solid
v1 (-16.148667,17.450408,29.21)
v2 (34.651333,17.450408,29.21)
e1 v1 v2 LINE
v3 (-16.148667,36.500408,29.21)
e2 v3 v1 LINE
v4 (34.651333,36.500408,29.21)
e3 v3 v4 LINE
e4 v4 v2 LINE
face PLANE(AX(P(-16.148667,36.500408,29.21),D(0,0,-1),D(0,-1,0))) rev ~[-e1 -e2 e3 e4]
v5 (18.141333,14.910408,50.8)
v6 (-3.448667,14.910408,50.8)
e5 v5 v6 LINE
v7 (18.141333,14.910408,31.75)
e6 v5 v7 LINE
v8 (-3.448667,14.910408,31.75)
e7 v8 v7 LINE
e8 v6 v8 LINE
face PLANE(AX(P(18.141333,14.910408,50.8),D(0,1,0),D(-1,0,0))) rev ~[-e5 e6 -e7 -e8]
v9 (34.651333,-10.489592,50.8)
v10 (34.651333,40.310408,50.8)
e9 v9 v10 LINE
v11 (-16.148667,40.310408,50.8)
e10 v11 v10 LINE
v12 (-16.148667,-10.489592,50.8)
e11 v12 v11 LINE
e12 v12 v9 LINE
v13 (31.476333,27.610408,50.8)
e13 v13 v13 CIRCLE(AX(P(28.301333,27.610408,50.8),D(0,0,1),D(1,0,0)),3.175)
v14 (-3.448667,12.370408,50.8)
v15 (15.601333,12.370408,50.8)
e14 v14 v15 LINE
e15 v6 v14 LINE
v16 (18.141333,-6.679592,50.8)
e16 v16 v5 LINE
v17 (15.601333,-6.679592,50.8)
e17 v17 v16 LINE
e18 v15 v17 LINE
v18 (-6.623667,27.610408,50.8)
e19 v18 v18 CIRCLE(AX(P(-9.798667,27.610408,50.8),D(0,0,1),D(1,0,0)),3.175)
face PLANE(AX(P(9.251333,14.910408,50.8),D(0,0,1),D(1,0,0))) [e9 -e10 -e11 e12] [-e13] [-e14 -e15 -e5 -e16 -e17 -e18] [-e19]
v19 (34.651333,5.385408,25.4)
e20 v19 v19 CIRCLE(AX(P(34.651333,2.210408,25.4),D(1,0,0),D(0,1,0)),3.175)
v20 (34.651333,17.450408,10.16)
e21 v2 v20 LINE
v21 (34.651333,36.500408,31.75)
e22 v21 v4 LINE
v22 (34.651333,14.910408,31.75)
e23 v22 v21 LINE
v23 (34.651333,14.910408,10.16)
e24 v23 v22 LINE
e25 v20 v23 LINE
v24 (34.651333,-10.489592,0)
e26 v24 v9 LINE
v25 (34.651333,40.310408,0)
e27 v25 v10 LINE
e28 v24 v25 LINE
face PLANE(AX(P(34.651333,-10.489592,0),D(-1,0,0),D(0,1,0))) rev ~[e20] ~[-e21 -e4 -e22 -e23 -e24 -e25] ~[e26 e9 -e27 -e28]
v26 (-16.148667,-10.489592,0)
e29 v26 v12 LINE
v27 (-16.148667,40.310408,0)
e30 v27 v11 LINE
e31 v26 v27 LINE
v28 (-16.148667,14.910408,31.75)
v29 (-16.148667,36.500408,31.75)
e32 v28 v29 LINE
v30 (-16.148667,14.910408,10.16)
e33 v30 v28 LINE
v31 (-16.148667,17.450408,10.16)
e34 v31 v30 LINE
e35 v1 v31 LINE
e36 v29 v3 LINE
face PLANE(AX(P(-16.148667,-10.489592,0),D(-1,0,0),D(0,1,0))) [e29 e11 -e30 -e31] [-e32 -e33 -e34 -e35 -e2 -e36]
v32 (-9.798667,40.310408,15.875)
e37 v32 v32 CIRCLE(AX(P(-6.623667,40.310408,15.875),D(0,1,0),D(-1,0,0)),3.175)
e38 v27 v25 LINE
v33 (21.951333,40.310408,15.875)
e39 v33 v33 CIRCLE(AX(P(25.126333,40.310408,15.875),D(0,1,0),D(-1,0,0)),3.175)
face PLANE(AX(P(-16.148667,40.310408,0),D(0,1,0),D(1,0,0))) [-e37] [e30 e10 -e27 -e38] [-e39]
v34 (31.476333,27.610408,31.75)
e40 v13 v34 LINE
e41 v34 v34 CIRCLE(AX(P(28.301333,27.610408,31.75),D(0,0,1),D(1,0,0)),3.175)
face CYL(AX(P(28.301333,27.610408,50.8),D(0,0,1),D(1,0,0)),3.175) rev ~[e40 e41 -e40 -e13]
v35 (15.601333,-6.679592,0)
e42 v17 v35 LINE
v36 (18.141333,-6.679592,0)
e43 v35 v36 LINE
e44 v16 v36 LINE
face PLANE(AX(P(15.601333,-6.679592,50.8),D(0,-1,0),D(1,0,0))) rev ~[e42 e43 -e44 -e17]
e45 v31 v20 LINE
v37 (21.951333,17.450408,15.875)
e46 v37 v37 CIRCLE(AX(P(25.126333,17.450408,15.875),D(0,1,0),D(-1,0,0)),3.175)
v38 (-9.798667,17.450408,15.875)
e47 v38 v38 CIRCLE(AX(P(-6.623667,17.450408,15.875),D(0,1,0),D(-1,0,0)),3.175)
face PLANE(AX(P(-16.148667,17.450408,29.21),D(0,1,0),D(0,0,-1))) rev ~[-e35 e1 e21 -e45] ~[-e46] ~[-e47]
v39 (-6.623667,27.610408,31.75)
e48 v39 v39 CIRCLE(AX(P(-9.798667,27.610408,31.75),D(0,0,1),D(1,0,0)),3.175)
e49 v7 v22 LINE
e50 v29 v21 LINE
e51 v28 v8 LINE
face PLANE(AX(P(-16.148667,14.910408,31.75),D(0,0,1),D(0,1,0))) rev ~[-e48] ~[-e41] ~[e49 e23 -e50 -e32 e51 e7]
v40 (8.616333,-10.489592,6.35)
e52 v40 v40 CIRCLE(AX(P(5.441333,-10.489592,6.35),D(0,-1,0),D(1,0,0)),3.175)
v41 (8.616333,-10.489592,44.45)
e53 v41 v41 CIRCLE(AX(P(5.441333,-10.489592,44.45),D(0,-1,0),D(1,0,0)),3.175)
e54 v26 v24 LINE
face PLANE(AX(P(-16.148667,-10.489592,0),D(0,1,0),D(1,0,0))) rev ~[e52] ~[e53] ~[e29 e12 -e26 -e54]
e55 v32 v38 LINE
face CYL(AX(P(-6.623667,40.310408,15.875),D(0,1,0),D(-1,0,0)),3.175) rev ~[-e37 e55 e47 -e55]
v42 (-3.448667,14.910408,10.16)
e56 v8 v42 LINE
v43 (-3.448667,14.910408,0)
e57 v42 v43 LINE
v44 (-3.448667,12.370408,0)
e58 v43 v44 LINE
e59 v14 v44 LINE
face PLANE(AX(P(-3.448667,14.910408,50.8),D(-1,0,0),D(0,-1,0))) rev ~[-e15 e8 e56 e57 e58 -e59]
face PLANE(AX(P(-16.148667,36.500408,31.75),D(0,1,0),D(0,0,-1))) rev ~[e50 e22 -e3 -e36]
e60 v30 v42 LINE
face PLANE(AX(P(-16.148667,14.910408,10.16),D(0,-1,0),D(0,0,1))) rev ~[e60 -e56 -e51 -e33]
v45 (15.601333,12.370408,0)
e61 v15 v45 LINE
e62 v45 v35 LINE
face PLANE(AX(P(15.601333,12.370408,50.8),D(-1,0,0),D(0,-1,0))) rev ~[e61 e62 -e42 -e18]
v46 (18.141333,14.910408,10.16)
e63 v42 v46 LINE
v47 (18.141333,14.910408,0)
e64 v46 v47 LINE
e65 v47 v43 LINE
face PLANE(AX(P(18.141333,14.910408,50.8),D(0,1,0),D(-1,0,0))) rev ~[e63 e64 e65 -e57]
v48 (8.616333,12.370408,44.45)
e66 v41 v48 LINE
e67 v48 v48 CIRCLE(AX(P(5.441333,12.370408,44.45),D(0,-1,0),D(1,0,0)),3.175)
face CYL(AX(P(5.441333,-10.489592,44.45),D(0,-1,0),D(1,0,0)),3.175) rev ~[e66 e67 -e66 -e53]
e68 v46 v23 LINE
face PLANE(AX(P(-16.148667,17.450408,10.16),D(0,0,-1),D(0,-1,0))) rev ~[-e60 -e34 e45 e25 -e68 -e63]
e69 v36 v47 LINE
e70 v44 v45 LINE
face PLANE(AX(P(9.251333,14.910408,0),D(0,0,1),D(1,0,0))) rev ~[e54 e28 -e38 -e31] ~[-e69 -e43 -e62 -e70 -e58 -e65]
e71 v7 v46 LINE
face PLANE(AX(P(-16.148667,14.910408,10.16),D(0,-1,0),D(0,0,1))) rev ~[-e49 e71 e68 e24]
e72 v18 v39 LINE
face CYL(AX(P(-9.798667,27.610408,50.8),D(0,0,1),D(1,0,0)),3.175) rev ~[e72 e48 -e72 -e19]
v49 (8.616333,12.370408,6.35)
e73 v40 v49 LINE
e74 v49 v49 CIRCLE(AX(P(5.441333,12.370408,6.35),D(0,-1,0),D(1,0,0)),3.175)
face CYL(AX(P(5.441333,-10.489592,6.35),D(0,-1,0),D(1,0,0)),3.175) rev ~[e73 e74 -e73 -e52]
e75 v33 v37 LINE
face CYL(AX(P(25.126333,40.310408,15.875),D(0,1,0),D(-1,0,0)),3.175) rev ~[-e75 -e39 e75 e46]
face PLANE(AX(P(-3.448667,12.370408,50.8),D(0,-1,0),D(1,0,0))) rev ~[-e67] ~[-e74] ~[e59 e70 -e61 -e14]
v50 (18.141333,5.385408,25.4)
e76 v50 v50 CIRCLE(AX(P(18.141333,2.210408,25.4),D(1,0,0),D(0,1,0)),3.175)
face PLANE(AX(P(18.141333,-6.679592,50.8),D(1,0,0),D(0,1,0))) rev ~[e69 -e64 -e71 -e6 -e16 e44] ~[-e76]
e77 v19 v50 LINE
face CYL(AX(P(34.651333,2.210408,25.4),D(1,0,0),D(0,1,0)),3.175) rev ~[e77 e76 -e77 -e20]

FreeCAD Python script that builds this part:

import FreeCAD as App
import Part
import Sketcher
Q = App.Units.Quantity

doc = App.newDocument("Part")
body = doc.addObject("PartDesign::Body", "Body")

sketch1 = doc.addObject("Sketcher::SketchObject", "Sketch")
body.addObject(sketch1)
sketch1.AttachmentSupport = (doc.XY_Plane, [""])
sketch1.MapMode = "FlatFace"
sketch1.addGeometry(Part.LineSegment(App.Vector(-16, 40, 0), App.Vector(-16, -10, 0)), False)
sketch1.addGeometry(Part.LineSegment(App.Vector(-16, -10, 0), App.Vector(35, -10, 0)), False)
sketch1.addGeometry(Part.LineSegment(App.Vector(35, -10, 0), App.Vector(35, 40, 0)), False)
sketch1.addGeometry(Part.LineSegment(App.Vector(35, 40, 0), App.Vector(-16, 40, 0)), False)
sketch1.addConstraint(Sketcher.Constraint("Coincident", 0, 2, 1, 1))
sketch1.addConstraint(Sketcher.Constraint("Coincident", 1, 2, 2, 1))
sketch1.addConstraint(Sketcher.Constraint("Coincident", 2, 2, 3, 1))
sketch1.addConstraint(Sketcher.Constraint("Coincident", 3, 2, 0, 1))
sketch1.addConstraint(Sketcher.Constraint("Vertical", 0))
sketch1.addConstraint(Sketcher.Constraint("Horizontal", 1))
sketch1.addConstraint(Sketcher.Constraint("Vertical", 2))
sketch1.addConstraint(Sketcher.Constraint("Horizontal", 3))
sketch1.addConstraint(Sketcher.Constraint("Equal", 3, 0))
sketch1.addConstraint(Sketcher.Constraint("DistanceX", 1, 1, 1, 2, Q("2 in")))
sketch1.addConstraint(Sketcher.Constraint("DistanceY", -1, 1, 2, 2, Q("40.310408 mm")))
sketch1.addConstraint(Sketcher.Constraint("DistanceX", 0, 2, -1, 1, Q("16.148667 mm")))
pad1 = doc.addObject("PartDesign::Pad", "Pad")
body.addObject(pad1)
pad1.Profile = sketch1
pad1.Length = Q("2 in")

sketch2 = doc.addObject("Sketcher::SketchObject", "Sketch001")
body.addObject(sketch2)
sketch2.AttachmentSupport = (doc.XY_Plane, [""])
sketch2.MapMode = "FlatFace"
sketch2.AttachmentOffset = App.Placement(App.Vector(0, 0, 2 * 25.4), App.Rotation())
sketch2.addGeometry(Part.LineSegment(App.Vector(-3.4, 14.9, 0), App.Vector(-3.4, 12.4, 0)), False)
sketch2.addGeometry(Part.LineSegment(App.Vector(-3.4, 12.4, 0), App.Vector(15.6, 12.4, 0)), False)
sketch2.addGeometry(Part.LineSegment(App.Vector(15.6, 12.4, 0), App.Vector(15.6, -6.7, 0)), False)
sketch2.addGeometry(Part.LineSegment(App.Vector(15.6, -6.7, 0), App.Vector(18.1, -6.7, 0)), False)
sketch2.addGeometry(Part.LineSegment(App.Vector(18.1, -6.7, 0), App.Vector(18.1, 14.9, 0)), False)
sketch2.addGeometry(Part.LineSegment(App.Vector(18.1, 14.9, 0), App.Vector(-3.4, 14.9, 0)), False)
sketch2.addConstraint(Sketcher.Constraint("Coincident", 0, 2, 1, 1))
sketch2.addConstraint(Sketcher.Constraint("Coincident", 1, 2, 2, 1))
sketch2.addConstraint(Sketcher.Constraint("Coincident", 2, 2, 3, 1))
sketch2.addConstraint(Sketcher.Constraint("Coincident", 3, 2, 4, 1))
sketch2.addConstraint(Sketcher.Constraint("Coincident", 4, 2, 5, 1))
sketch2.addConstraint(Sketcher.Constraint("Coincident", 5, 2, 0, 1))
sketch2.addConstraint(Sketcher.Constraint("Vertical", 0))
sketch2.addConstraint(Sketcher.Constraint("Horizontal", 1))
sketch2.addConstraint(Sketcher.Constraint("Vertical", 2))
sketch2.addConstraint(Sketcher.Constraint("Horizontal", 3))
sketch2.addConstraint(Sketcher.Constraint("Vertical", 4))
sketch2.addConstraint(Sketcher.Constraint("Horizontal", 5))
sketch2.addConstraint(Sketcher.Constraint("Equal", 3, 0))
sketch2.addConstraint(Sketcher.Constraint("Equal", 1, 2))
sketch2.addConstraint(Sketcher.Constraint("DistanceX", 3, 1, 3, 2, Q("0.1 in")))
sketch2.addConstraint(Sketcher.Constraint("DistanceX", 1, 1, 1, 2, Q("0.75 in")))
sketch2.addConstraint(Sketcher.Constraint("DistanceX", 0, 2, -1, 1, Q("3.448667 mm")))
sketch2.addConstraint(Sketcher.Constraint("DistanceY", -1, 1, 0, 2, Q("12.370408 mm")))
pocket1 = doc.addObject("PartDesign::Pocket", "Pocket")
body.addObject(pocket1)
pocket1.Profile = sketch2
pocket1.Type = "ThroughAll"

sketch3 = doc.addObject("Sketcher::SketchObject", "Sketch002")
body.addObject(sketch3)
sketch3.AttachmentSupport = (doc.YZ_Plane, [""])
sketch3.MapMode = "FlatFace"
sketch3.AttachmentOffset = App.Placement(App.Vector(0, 0, -16.148667), App.Rotation())
sketch3.addGeometry(Part.LineSegment(App.Vector(14.9, 10.2, 0), App.Vector(14.9, 31.8, 0)), False)
sketch3.addGeometry(Part.LineSegment(App.Vector(14.9, 31.8, 0), App.Vector(36.5, 31.8, 0)), False)
sketch3.addGeometry(Part.LineSegment(App.Vector(36.5, 31.8, 0), App.Vector(36.5, 29.2, 0)), False)
sketch3.addGeometry(Part.LineSegment(App.Vector(36.5, 29.2, 0), App.Vector(17.5, 29.2, 0)), False)
sketch3.addGeometry(Part.LineSegment(App.Vector(17.5, 29.2, 0), App.Vector(17.5, 10.2, 0)), False)
sketch3.addGeometry(Part.LineSegment(App.Vector(17.5, 10.2, 0), App.Vector(14.9, 10.2, 0)), False)
sketch3.addConstraint(Sketcher.Constraint("Coincident", 0, 2, 1, 1))
sketch3.addConstraint(Sketcher.Constraint("Coincident", 1, 2, 2, 1))
sketch3.addConstraint(Sketcher.Constraint("Coincident", 2, 2, 3, 1))
sketch3.addConstraint(Sketcher.Constraint("Coincident", 3, 2, 4, 1))
sketch3.addConstraint(Sketcher.Constraint("Coincident", 4, 2, 5, 1))
sketch3.addConstraint(Sketcher.Constraint("Coincident", 5, 2, 0, 1))
sketch3.addConstraint(Sketcher.Constraint("Vertical", 0))
sketch3.addConstraint(Sketcher.Constraint("Horizontal", 1))
sketch3.addConstraint(Sketcher.Constraint("Vertical", 2))
sketch3.addConstraint(Sketcher.Constraint("Horizontal", 3))
sketch3.addConstraint(Sketcher.Constraint("Vertical", 4))
sketch3.addConstraint(Sketcher.Constraint("Horizontal", 5))
sketch3.addConstraint(Sketcher.Constraint("Equal", 1, 0))
sketch3.addConstraint(Sketcher.Constraint("Equal", 5, 2))
sketch3.addConstraint(Sketcher.Constraint("DistanceX", 5, 2, 5, 1, Q("0.1 in")))
sketch3.addConstraint(Sketcher.Constraint("DistanceX", 1, 1, 1, 2, Q("0.85 in")))
sketch3.addConstraint(Sketcher.Constraint("DistanceY", -1, 1, 4, 2, Q("0.4 in")))
sketch3.addConstraint(Sketcher.Constraint("DistanceX", -1, 1, 0, 2, Q("14.910408 mm")))
pocket2 = doc.addObject("PartDesign::Pocket", "Pocket001")
body.addObject(pocket2)
pocket2.Profile = sketch3
pocket2.Type = "ThroughAll"
pocket2.Reversed = True

sketch4 = doc.addObject("Sketcher::SketchObject", "Sketch003")
body.addObject(sketch4)
sketch4.AttachmentSupport = (doc.XZ_Plane, [""])
sketch4.MapMode = "FlatFace"
sketch4.AttachmentOffset = App.Placement(App.Vector(0, 0, 10.489592), App.Rotation())
sketch4.addGeometry(Part.Circle(App.Vector(5.4, 44.5, 0), App.Vector(0, 0, 1), 3.2), False)
sketch4.addGeometry(Part.Circle(App.Vector(5.4, 6.3, 0), App.Vector(0, 0, 1), 3.2), False)
sketch4.addConstraint(Sketcher.Constraint("Equal", 0, 1))
sketch4.addConstraint(Sketcher.Constraint("Vertical", 0, 3, 1, 3))
sketch4.addConstraint(Sketcher.Constraint("Diameter", 0, Q("0.25 in")))
sketch4.addConstraint(Sketcher.Constraint("DistanceY", 1, 3, 0, 3, Q("1.5 in")))
sketch4.addConstraint(Sketcher.Constraint("DistanceY", -1, 1, 0, 3, Q("1.75 in")))
sketch4.addConstraint(Sketcher.Constraint("DistanceX", -1, 1, 0, 3, Q("5.441333 mm")))
pocket3 = doc.addObject("PartDesign::Pocket", "Pocket002")
body.addObject(pocket3)
pocket3.Profile = sketch4
pocket3.Length = Q("0.9 in")

sketch5 = doc.addObject("Sketcher::SketchObject", "Sketch004")
body.addObject(sketch5)
sketch5.AttachmentSupport = (doc.YZ_Plane, [""])
sketch5.MapMode = "FlatFace"
sketch5.AttachmentOffset = App.Placement(App.Vector(0, 0, 34.651333), App.Rotation())
sketch5.addGeometry(Part.Circle(App.Vector(2.2, 25.4, 0), App.Vector(0, 0, 1), 3.2), False)
sketch5.addConstraint(Sketcher.Constraint("Diameter", 0, Q("0.25 in")))
sketch5.addConstraint(Sketcher.Constraint("DistanceY", -1, 1, 0, 3, Q("1 in")))
sketch5.addConstraint(Sketcher.Constraint("DistanceX", -1, 1, 0, 3, Q("2.210408 mm")))
pocket4 = doc.addObject("PartDesign::Pocket", "Pocket003")
body.addObject(pocket4)
pocket4.Profile = sketch5
pocket4.Length = Q("0.65 in")

sketch6 = doc.addObject("Sketcher::SketchObject", "Sketch005")
body.addObject(sketch6)
sketch6.AttachmentSupport = (doc.XY_Plane, [""])
sketch6.MapMode = "FlatFace"
sketch6.AttachmentOffset = App.Placement(App.Vector(0, 0, 2 * 25.4), App.Rotation())
sketch6.addGeometry(Part.Circle(App.Vector(28.3, 27.6, 0), App.Vector(0, 0, 1), 3.2), False)
sketch6.addGeometry(Part.Circle(App.Vector(-9.8, 27.6, 0), App.Vector(0, 0, 1), 3.2), False)
sketch6.addConstraint(Sketcher.Constraint("Equal", 0, 1))
sketch6.addConstraint(Sketcher.Constraint("Horizontal", 0, 3, 1, 3))
sketch6.addConstraint(Sketcher.Constraint("Diameter", 0, Q("0.25 in")))
sketch6.addConstraint(Sketcher.Constraint("DistanceX", 1, 3, 0, 3, Q("1.5 in")))
sketch6.addConstraint(Sketcher.Constraint("DistanceX", -1, 1, 0, 3, Q("28.301333 mm")))
sketch6.addConstraint(Sketcher.Constraint("DistanceY", -1, 1, 0, 3, Q("27.610408 mm")))
pocket5 = doc.addObject("PartDesign::Pocket", "Pocket004")
body.addObject(pocket5)
pocket5.Profile = sketch6
pocket5.Length = Q("0.75 in")

sketch7 = doc.addObject("Sketcher::SketchObject", "Sketch006")
body.addObject(sketch7)
sketch7.AttachmentSupport = (doc.XZ_Plane, [""])
sketch7.MapMode = "FlatFace"
sketch7.AttachmentOffset = App.Placement(App.Vector(0, 0, -40.310408), App.Rotation())
sketch7.addGeometry(Part.Circle(App.Vector(25.1, 15.9, 0), App.Vector(0, 0, 1), 3.2), False)
sketch7.addGeometry(Part.Circle(App.Vector(-6.6, 15.9, 0), App.Vector(0, 0, 1), 3.2), False)
sketch7.addConstraint(Sketcher.Constraint("Equal", 0, 1))
sketch7.addConstraint(Sketcher.Constraint("Horizontal", 0, 3, 1, 3))
sketch7.addConstraint(Sketcher.Constraint("Diameter", 0, Q("0.25 in")))
sketch7.addConstraint(Sketcher.Constraint("DistanceX", 1, 3, 0, 3, Q("1.25 in")))
sketch7.addConstraint(Sketcher.Constraint("DistanceY", -1, 1, 0, 3, Q("0.625 in")))
sketch7.addConstraint(Sketcher.Constraint("DistanceX", -1, 1, 0, 3, Q("25.126333 mm")))
pocket6 = doc.addObject("PartDesign::Pocket", "Pocket005")
body.addObject(pocket6)
pocket6.Profile = sketch7
pocket6.Length = Q("0.9 in")
pocket6.Reversed = True

doc.recompute()
